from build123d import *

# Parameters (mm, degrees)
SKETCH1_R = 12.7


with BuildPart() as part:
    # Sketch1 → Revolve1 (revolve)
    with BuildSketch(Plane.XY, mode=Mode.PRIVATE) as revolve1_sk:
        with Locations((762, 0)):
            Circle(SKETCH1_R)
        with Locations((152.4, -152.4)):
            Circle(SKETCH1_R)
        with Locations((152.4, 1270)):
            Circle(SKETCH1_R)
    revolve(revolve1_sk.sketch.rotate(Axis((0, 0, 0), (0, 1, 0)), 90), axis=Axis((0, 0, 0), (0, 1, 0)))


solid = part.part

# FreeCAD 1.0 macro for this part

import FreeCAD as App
import Part
import Sketcher
from FreeCAD import Vector
Q = App.Units.Quantity

doc = App.newDocument("Part")
body = doc.addObject("PartDesign::Body", "Body")
body.AllowCompound = True

# Sketch on XY plane
sketch1 = body.newObject("Sketcher::SketchObject", "Sketch")
sketch1.AttachmentSupport = (doc.getObject("XY_Plane"), [""])
sketch1.MapMode = "FlatFace"
sketch1.addGeometry(Part.Circle(Vector(762, 0, 0), Vector(0, 0, 1), 13), False)
sketch1.addGeometry(Part.Circle(Vector(152, -152, 0), Vector(0, 0, 1), 13), False)
sketch1.addGeometry(Part.Circle(Vector(152, 1270, 0), Vector(0, 0, 1), 13), False)
sketch1.addConstraint(Sketcher.Constraint("Equal", 0, 1))
sketch1.addConstraint(Sketcher.Constraint("Equal", 1, 2))
sketch1.addConstraint(Sketcher.Constraint("PointOnObject", 0, 3, -1))
sketch1.addConstraint(Sketcher.Constraint("Vertical", 1, 3, 2, 3))
sketch1.addConstraint(Sketcher.Constraint("Diameter", 0, Q("1 in")))
sketch1.addConstraint(Sketcher.Constraint("DistanceX", -1, 1, 0, 3, Q("30 in")))
sketch1.addConstraint(Sketcher.Constraint("DistanceX", -1, 1, 1, 3, Q("6 in")))
sketch1.addConstraint(Sketcher.Constraint("DistanceY", 1, 3, -1, 1, Q("6 in")))
sketch1.addConstraint(Sketcher.Constraint("DistanceY", -1, 1, 2, 3, Q("50 in")))
revolution = body.newObject("PartDesign::Revolution", "Revolution")
revolution.Profile = sketch1
revolution.ReferenceAxis = (sketch1, ["V_Axis"])
revolution.Angle = 360

doc.recompute()
